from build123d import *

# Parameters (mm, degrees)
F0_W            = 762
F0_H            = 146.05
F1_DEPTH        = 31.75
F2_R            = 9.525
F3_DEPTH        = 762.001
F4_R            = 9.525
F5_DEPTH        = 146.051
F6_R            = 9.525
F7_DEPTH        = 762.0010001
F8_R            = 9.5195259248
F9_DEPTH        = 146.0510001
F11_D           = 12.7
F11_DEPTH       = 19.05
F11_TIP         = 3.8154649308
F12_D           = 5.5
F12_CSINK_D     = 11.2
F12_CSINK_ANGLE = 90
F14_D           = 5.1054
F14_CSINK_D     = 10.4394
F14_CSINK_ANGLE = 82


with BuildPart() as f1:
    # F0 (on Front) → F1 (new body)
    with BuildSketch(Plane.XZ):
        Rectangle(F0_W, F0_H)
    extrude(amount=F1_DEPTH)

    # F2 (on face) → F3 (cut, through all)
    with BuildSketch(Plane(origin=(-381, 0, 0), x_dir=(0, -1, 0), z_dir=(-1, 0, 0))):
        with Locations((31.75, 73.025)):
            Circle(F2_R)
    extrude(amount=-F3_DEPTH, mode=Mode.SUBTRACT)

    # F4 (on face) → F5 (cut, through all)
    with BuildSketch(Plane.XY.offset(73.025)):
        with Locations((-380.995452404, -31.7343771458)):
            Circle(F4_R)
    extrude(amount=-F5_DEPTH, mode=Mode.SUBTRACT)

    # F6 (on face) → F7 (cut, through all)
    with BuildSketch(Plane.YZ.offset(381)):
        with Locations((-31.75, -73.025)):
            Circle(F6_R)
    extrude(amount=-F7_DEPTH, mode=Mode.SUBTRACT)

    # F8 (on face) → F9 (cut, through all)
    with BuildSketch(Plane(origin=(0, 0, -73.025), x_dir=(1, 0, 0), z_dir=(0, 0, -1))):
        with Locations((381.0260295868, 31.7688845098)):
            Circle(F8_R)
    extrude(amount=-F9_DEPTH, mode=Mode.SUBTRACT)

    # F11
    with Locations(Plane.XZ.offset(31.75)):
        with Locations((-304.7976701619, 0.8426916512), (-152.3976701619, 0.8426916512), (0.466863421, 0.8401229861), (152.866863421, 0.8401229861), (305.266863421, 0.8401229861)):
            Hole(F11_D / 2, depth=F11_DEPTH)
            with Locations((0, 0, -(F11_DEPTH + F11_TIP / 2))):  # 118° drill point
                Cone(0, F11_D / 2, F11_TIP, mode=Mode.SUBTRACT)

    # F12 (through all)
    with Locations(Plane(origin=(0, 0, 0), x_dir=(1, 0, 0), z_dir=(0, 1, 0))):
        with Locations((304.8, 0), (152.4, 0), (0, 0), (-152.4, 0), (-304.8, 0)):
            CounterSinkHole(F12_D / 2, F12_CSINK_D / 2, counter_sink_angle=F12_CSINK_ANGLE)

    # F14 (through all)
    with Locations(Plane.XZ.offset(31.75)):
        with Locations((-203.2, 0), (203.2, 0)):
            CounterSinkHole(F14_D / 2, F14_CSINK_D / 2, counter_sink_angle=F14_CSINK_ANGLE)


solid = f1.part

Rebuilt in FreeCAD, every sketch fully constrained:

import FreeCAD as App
import Part
import Sketcher
from FreeCAD import Vector
Q = App.Units.Quantity

doc = App.newDocument("Part")
body = doc.addObject("PartDesign::Body", "Body")

sketch1 = doc.addObject("Sketcher::SketchObject", "Sketch")
body.addObject(sketch1)
sketch1.AttachmentSupport = (doc.XZ_Plane, [""])
sketch1.MapMode = "FlatFace"
sketch1.addGeometry(Part.LineSegment(Vector(-381, 73.025, 0), Vector(-381, -73.025, 0)), False)
sketch1.addGeometry(Part.LineSegment(Vector(-381, -73.025, 0), Vector(381, -73.025, 0)), False)
sketch1.addGeometry(Part.LineSegment(Vector(381, -73.025, 0), Vector(381, 73.025, 0)), False)
sketch1.addGeometry(Part.LineSegment(Vector(381, 73.025, 0), Vector(-381, 73.025, 0)), False)
sketch1.addConstraint(Sketcher.Constraint("Coincident", 0, 2, 1, 1))
sketch1.addConstraint(Sketcher.Constraint("Coincident", 1, 2, 2, 1))
sketch1.addConstraint(Sketcher.Constraint("Coincident", 2, 2, 3, 1))
sketch1.addConstraint(Sketcher.Constraint("Coincident", 3, 2, 0, 1))
sketch1.addConstraint(Sketcher.Constraint("Vertical", 0))
sketch1.addConstraint(Sketcher.Constraint("Horizontal", 1))
sketch1.addConstraint(Sketcher.Constraint("Vertical", 2))
sketch1.addConstraint(Sketcher.Constraint("Horizontal", 3))
sketch1.addConstraint(Sketcher.Constraint("Symmetric", 0, 2, 2, 2, -1, 1))
sketch1.addConstraint(Sketcher.Constraint("DistanceX", 1, 1, 1, 2, Q("30 in")))
sketch1.addConstraint(Sketcher.Constraint("DistanceY", 0, 2, 0, 1, Q("5.75 in")))
pad1 = doc.addObject("PartDesign::Pad", "Pad")
body.addObject(pad1)
pad1.Profile = sketch1
pad1.Length = Q("1.25 in")

sketch2 = doc.addObject("Sketcher::SketchObject", "Sketch001")
body.addObject(sketch2)
sketch2.AttachmentSupport = (doc.YZ_Plane, [""])
sketch2.MapMode = "FlatFace"
sketch2.AttachmentOffset = App.Placement(Vector(0, 0, -15 * 25.4), App.Rotation())
sketch2.addGeometry(Part.Circle(Vector(-31.75, 73.025, 0), Vector(0, 0, 1), 9.525), False)
sketch2.addConstraint(Sketcher.Constraint("Diameter", 0, Q("0.75 in")))
sketch2.addConstraint(Sketcher.Constraint("DistanceX", 0, 3, -1, 1, Q("1.25 in")))
sketch2.addConstraint(Sketcher.Constraint("DistanceY", -1, 1, 0, 3, Q("2.875 in")))
pocket1 = doc.addObject("PartDesign::Pocket", "Pocket")
body.addObject(pocket1)
pocket1.Profile = sketch2
pocket1.Type = "ThroughAll"
pocket1.Reversed = True

sketch3 = doc.addObject("Sketcher::SketchObject", "Sketch002")
body.addObject(sketch3)
sketch3.AttachmentSupport = (doc.XY_Plane, [""])
sketch3.MapMode = "FlatFace"
sketch3.AttachmentOffset = App.Placement(Vector(0, 0, 2.875 * 25.4), App.Rotation())
sketch3.addGeometry(Part.Circle(Vector(-380.995452, -31.734377, 0), Vector(0, 0, 1), 9.525), False)
sketch3.addConstraint(Sketcher.Constraint("Diameter", 0, Q("0.75 in")))
sketch3.addConstraint(Sketcher.Constraint("DistanceX", 0, 3, -1, 1, Q("380.995452 mm")))
sketch3.addConstraint(Sketcher.Constraint("DistanceY", 0, 3, -1, 1, Q("31.734377 mm")))
pocket2 = doc.addObject("PartDesign::Pocket", "Pocket001")
body.addObject(pocket2)
pocket2.Profile = sketch3
pocket2.Type = "ThroughAll"

sketch4 = doc.addObject("Sketcher::SketchObject", "Sketch003")
body.addObject(sketch4)
sketch4.AttachmentSupport = (doc.YZ_Plane, [""])
sketch4.MapMode = "FlatFace"
sketch4.AttachmentOffset = App.Placement(Vector(0, 0, 15 * 25.4), App.Rotation())
sketch4.addGeometry(Part.Circle(Vector(-31.75, -73.025, 0), Vector(0, 0, 1), 9.525), False)
sketch4.addConstraint(Sketcher.Constraint("Diameter", 0, Q("0.75 in")))
sketch4.addConstraint(Sketcher.Constraint("DistanceX", 0, 3, -1, 1, Q("1.25 in")))
sketch4.addConstraint(Sketcher.Constraint("DistanceY", 0, 3, -1, 1, Q("2.875 in")))
pocket3 = doc.addObject("PartDesign::Pocket", "Pocket002")
body.addObject(pocket3)
pocket3.Profile = sketch4
pocket3.Type = "ThroughAll"

sketch5 = doc.addObject("Sketcher::SketchObject", "Sketch004")
body.addObject(sketch5)
sketch5.AttachmentSupport = (doc.XY_Plane, [""])
sketch5.MapMode = "FlatFace"
sketch5.AttachmentOffset = App.Placement(Vector(0, 0, -2.875 * 25.4), App.Rotation())
sketch5.addGeometry(Part.Circle(Vector(381.02603, -31.768885, 0), Vector(0, 0, 1), 9.519526), False)
sketch5.addConstraint(Sketcher.Constraint("Diameter", 0, Q("19.039052 mm")))
sketch5.addConstraint(Sketcher.Constraint("DistanceX", -1, 1, 0, 3, Q("381.02603 mm")))
sketch5.addConstraint(Sketcher.Constraint("DistanceY", 0, 3, -1, 1, Q("31.768885 mm")))
pocket4 = doc.addObject("PartDesign::Pocket", "Pocket003")
body.addObject(pocket4)
pocket4.Profile = sketch5
pocket4.Type = "ThroughAll"
pocket4.Reversed = True

sketch6 = doc.addObject("Sketcher::SketchObject", "Sketch005")
body.addObject(sketch6)
sketch6.AttachmentSupport = (doc.XZ_Plane, [""])
sketch6.MapMode = "FlatFace"
sketch6.AttachmentOffset = App.Placement(Vector(0, 0, 1.25 * 25.4), App.Rotation())
sketch6.addGeometry(Part.Circle(Vector(-304.79767, 0.842692, 0), Vector(0, 0, 1), 6.35), False)
sketch6.addGeometry(Part.Circle(Vector(-152.39767, 0.842692, 0), Vector(0, 0, 1), 6.35), False)
sketch6.addGeometry(Part.Circle(Vector(0.466863, 0.840123, 0), Vector(0, 0, 1), 6.35), False)
sketch6.addGeometry(Part.Circle(Vector(152.866863, 0.840123, 0), Vector(0, 0, 1), 6.35), False)
sketch6.addGeometry(Part.Circle(Vector(305.266863, 0.840123, 0), Vector(0, 0, 1), 6.35), False)
sketch6.addConstraint(Sketcher.Constraint("Equal", 0, 1))
sketch6.addConstraint(Sketcher.Constraint("Equal", 1, 2))
sketch6.addConstraint(Sketcher.Constraint("Equal", 2, 3))
sketch6.addConstraint(Sketcher.Constraint("Equal", 3, 4))
sketch6.addConstraint(Sketcher.Constraint("Horizontal", 0, 3, 1, 3))
sketch6.addConstraint(Sketcher.Constraint("Horizontal", 2, 3, 3, 3))
sketch6.addConstraint(Sketcher.Constraint("Horizontal", 3, 3, 4, 3))
sketch6.addConstraint(Sketcher.Constraint("Diameter", 0, Q("0.5 in")))
sketch6.addConstraint(Sketcher.Constraint("DistanceX", 0, 3, 1, 3, Q("6 in")))
sketch6.addConstraint(Sketcher.Constraint("DistanceX", 2, 3, 3, 3, Q("6 in")))
sketch6.addConstraint(Sketcher.Constraint("DistanceX", 3, 3, 4, 3, Q("6 in")))
sketch6.addConstraint(Sketcher.Constraint("DistanceX", 0, 3, -1, 1, Q("304.79767 mm")))
sketch6.addConstraint(Sketcher.Constraint("DistanceY", -1, 1, 0, 3, Q("0.842692 mm")))
sketch6.addConstraint(Sketcher.Constraint("DistanceY", 2, 3, 1, 3, Q("0.002569 mm")))
sketch6.addConstraint(Sketcher.Constraint("DistanceX", -1, 1, 2, 3, Q("0.466863 mm")))
doc.recompute()
hole = doc.addObject("PartDesign::Hole", "Hole")
body.addObject(hole)
hole.Profile = sketch6
hole.ThreadType = "None"
hole.Diameter = Q("0.5 in")
hole.DepthType = "Dimension"
hole.Depth = Q("0.75 in")
hole.DrillPoint = "Angled"
hole.DrillPointAngle = 118

sketch7 = doc.addObject("Sketcher::SketchObject", "Sketch006")
body.addObject(sketch7)
sketch7.AttachmentSupport = (doc.XZ_Plane, [""])
sketch7.MapMode = "FlatFace"
sketch7.addGeometry(Part.Circle(Vector(304.8, 0, 0), Vector(0, 0, 1), 2.75), False)
sketch7.addGeometry(Part.Circle(Vector(152.4, 0, 0), Vector(0, 0, 1), 2.75), False)
sketch7.addGeometry(Part.Circle(Vector(0, 0, 0), Vector(0, 0, 1), 2.75), False)
sketch7.addGeometry(Part.Circle(Vector(-152.4, 0, 0), Vector(0, 0, 1), 2.75), False)
sketch7.addGeometry(Part.Circle(Vector(-304.8, 0, 0), Vector(0, 0, 1), 2.75), False)
sketch7.addConstraint(Sketcher.Constraint("Coincident", 2, 3, -1, 1))
sketch7.addConstraint(Sketcher.Constraint("Equal", 0, 1))
sketch7.addConstraint(Sketcher.Constraint("Equal", 1, 2))
sketch7.addConstraint(Sketcher.Constraint("Equal", 2, 3))
sketch7.addConstraint(Sketcher.Constraint("Equal", 3, 4))
sketch7.addConstraint(Sketcher.Constraint("Symmetric", 1, 3, 3, 3, -1, 1))
sketch7.addConstraint(Sketcher.Constraint("Symmetric", 0, 3, 4, 3, -1, 1))
sketch7.addConstraint(Sketcher.Constraint("PointOnObject", 0, 3, -1))
sketch7.addConstraint(Sketcher.Constraint("PointOnObject", 1, 3, -1))
sketch7.addConstraint(Sketcher.Constraint("DistanceX", -1, 1, 0, 3, Q("12 in")))
sketch7.addConstraint(Sketcher.Constraint("DistanceX", -1, 1, 1, 3, Q("6 in")))
sketch7.addConstraint(Sketcher.Constraint("Diameter", 0, Q("5.5 mm")))
doc.recompute()
hole2 = doc.addObject("PartDesign::Hole", "Hole001")
body.addObject(hole2)
hole2.Profile = sketch7
hole2.ThreadType = "None"
hole2.Diameter = 5.5
hole2.DepthType = "ThroughAll"
hole2.HoleCutType = "Countersink"
hole2.HoleCutDiameter = 11.2
hole2.HoleCutCountersinkAngle = 90
hole2.Reversed = True

sketch8 = doc.addObject("Sketcher::SketchObject", "Sketch007")
body.addObject(sketch8)
sketch8.AttachmentSupport = (doc.XZ_Plane, [""])
sketch8.MapMode = "FlatFace"
sketch8.AttachmentOffset = App.Placement(Vector(0, 0, 1.25 * 25.4), App.Rotation())
sketch8.addGeometry(Part.Circle(Vector(-203.2, 0, 0), Vector(0, 0, 1), 2.5527), False)
sketch8.addGeometry(Part.Circle(Vector(203.2, 0, 0), Vector(0, 0, 1), 2.5527), False)
sketch8.addConstraint(Sketcher.Constraint("Equal", 0, 1))
sketch8.addConstraint(Sketcher.Constraint("Symmetric", 0, 3, 1, 3, -1, 1))
sketch8.addConstraint(Sketcher.Constraint("PointOnObject", 0, 3, -1))
sketch8.addConstraint(Sketcher.Constraint("Diameter", 0, Q("0.201 in")))
sketch8.addConstraint(Sketcher.Constraint("DistanceX", 0, 3, -1, 1, Q("8 in")))
doc.recompute()
hole3 = doc.addObject("PartDesign::Hole", "Hole002")
body.addObject(hole3)
hole3.Profile = sketch8
hole3.ThreadType = "None"
hole3.Diameter = Q("0.201 in")
hole3.DepthType = "ThroughAll"
hole3.HoleCutType = "Countersink"
hole3.HoleCutDiameter = Q("0.411 in")
hole3.HoleCutCountersinkAngle = 82

doc.recompute()
